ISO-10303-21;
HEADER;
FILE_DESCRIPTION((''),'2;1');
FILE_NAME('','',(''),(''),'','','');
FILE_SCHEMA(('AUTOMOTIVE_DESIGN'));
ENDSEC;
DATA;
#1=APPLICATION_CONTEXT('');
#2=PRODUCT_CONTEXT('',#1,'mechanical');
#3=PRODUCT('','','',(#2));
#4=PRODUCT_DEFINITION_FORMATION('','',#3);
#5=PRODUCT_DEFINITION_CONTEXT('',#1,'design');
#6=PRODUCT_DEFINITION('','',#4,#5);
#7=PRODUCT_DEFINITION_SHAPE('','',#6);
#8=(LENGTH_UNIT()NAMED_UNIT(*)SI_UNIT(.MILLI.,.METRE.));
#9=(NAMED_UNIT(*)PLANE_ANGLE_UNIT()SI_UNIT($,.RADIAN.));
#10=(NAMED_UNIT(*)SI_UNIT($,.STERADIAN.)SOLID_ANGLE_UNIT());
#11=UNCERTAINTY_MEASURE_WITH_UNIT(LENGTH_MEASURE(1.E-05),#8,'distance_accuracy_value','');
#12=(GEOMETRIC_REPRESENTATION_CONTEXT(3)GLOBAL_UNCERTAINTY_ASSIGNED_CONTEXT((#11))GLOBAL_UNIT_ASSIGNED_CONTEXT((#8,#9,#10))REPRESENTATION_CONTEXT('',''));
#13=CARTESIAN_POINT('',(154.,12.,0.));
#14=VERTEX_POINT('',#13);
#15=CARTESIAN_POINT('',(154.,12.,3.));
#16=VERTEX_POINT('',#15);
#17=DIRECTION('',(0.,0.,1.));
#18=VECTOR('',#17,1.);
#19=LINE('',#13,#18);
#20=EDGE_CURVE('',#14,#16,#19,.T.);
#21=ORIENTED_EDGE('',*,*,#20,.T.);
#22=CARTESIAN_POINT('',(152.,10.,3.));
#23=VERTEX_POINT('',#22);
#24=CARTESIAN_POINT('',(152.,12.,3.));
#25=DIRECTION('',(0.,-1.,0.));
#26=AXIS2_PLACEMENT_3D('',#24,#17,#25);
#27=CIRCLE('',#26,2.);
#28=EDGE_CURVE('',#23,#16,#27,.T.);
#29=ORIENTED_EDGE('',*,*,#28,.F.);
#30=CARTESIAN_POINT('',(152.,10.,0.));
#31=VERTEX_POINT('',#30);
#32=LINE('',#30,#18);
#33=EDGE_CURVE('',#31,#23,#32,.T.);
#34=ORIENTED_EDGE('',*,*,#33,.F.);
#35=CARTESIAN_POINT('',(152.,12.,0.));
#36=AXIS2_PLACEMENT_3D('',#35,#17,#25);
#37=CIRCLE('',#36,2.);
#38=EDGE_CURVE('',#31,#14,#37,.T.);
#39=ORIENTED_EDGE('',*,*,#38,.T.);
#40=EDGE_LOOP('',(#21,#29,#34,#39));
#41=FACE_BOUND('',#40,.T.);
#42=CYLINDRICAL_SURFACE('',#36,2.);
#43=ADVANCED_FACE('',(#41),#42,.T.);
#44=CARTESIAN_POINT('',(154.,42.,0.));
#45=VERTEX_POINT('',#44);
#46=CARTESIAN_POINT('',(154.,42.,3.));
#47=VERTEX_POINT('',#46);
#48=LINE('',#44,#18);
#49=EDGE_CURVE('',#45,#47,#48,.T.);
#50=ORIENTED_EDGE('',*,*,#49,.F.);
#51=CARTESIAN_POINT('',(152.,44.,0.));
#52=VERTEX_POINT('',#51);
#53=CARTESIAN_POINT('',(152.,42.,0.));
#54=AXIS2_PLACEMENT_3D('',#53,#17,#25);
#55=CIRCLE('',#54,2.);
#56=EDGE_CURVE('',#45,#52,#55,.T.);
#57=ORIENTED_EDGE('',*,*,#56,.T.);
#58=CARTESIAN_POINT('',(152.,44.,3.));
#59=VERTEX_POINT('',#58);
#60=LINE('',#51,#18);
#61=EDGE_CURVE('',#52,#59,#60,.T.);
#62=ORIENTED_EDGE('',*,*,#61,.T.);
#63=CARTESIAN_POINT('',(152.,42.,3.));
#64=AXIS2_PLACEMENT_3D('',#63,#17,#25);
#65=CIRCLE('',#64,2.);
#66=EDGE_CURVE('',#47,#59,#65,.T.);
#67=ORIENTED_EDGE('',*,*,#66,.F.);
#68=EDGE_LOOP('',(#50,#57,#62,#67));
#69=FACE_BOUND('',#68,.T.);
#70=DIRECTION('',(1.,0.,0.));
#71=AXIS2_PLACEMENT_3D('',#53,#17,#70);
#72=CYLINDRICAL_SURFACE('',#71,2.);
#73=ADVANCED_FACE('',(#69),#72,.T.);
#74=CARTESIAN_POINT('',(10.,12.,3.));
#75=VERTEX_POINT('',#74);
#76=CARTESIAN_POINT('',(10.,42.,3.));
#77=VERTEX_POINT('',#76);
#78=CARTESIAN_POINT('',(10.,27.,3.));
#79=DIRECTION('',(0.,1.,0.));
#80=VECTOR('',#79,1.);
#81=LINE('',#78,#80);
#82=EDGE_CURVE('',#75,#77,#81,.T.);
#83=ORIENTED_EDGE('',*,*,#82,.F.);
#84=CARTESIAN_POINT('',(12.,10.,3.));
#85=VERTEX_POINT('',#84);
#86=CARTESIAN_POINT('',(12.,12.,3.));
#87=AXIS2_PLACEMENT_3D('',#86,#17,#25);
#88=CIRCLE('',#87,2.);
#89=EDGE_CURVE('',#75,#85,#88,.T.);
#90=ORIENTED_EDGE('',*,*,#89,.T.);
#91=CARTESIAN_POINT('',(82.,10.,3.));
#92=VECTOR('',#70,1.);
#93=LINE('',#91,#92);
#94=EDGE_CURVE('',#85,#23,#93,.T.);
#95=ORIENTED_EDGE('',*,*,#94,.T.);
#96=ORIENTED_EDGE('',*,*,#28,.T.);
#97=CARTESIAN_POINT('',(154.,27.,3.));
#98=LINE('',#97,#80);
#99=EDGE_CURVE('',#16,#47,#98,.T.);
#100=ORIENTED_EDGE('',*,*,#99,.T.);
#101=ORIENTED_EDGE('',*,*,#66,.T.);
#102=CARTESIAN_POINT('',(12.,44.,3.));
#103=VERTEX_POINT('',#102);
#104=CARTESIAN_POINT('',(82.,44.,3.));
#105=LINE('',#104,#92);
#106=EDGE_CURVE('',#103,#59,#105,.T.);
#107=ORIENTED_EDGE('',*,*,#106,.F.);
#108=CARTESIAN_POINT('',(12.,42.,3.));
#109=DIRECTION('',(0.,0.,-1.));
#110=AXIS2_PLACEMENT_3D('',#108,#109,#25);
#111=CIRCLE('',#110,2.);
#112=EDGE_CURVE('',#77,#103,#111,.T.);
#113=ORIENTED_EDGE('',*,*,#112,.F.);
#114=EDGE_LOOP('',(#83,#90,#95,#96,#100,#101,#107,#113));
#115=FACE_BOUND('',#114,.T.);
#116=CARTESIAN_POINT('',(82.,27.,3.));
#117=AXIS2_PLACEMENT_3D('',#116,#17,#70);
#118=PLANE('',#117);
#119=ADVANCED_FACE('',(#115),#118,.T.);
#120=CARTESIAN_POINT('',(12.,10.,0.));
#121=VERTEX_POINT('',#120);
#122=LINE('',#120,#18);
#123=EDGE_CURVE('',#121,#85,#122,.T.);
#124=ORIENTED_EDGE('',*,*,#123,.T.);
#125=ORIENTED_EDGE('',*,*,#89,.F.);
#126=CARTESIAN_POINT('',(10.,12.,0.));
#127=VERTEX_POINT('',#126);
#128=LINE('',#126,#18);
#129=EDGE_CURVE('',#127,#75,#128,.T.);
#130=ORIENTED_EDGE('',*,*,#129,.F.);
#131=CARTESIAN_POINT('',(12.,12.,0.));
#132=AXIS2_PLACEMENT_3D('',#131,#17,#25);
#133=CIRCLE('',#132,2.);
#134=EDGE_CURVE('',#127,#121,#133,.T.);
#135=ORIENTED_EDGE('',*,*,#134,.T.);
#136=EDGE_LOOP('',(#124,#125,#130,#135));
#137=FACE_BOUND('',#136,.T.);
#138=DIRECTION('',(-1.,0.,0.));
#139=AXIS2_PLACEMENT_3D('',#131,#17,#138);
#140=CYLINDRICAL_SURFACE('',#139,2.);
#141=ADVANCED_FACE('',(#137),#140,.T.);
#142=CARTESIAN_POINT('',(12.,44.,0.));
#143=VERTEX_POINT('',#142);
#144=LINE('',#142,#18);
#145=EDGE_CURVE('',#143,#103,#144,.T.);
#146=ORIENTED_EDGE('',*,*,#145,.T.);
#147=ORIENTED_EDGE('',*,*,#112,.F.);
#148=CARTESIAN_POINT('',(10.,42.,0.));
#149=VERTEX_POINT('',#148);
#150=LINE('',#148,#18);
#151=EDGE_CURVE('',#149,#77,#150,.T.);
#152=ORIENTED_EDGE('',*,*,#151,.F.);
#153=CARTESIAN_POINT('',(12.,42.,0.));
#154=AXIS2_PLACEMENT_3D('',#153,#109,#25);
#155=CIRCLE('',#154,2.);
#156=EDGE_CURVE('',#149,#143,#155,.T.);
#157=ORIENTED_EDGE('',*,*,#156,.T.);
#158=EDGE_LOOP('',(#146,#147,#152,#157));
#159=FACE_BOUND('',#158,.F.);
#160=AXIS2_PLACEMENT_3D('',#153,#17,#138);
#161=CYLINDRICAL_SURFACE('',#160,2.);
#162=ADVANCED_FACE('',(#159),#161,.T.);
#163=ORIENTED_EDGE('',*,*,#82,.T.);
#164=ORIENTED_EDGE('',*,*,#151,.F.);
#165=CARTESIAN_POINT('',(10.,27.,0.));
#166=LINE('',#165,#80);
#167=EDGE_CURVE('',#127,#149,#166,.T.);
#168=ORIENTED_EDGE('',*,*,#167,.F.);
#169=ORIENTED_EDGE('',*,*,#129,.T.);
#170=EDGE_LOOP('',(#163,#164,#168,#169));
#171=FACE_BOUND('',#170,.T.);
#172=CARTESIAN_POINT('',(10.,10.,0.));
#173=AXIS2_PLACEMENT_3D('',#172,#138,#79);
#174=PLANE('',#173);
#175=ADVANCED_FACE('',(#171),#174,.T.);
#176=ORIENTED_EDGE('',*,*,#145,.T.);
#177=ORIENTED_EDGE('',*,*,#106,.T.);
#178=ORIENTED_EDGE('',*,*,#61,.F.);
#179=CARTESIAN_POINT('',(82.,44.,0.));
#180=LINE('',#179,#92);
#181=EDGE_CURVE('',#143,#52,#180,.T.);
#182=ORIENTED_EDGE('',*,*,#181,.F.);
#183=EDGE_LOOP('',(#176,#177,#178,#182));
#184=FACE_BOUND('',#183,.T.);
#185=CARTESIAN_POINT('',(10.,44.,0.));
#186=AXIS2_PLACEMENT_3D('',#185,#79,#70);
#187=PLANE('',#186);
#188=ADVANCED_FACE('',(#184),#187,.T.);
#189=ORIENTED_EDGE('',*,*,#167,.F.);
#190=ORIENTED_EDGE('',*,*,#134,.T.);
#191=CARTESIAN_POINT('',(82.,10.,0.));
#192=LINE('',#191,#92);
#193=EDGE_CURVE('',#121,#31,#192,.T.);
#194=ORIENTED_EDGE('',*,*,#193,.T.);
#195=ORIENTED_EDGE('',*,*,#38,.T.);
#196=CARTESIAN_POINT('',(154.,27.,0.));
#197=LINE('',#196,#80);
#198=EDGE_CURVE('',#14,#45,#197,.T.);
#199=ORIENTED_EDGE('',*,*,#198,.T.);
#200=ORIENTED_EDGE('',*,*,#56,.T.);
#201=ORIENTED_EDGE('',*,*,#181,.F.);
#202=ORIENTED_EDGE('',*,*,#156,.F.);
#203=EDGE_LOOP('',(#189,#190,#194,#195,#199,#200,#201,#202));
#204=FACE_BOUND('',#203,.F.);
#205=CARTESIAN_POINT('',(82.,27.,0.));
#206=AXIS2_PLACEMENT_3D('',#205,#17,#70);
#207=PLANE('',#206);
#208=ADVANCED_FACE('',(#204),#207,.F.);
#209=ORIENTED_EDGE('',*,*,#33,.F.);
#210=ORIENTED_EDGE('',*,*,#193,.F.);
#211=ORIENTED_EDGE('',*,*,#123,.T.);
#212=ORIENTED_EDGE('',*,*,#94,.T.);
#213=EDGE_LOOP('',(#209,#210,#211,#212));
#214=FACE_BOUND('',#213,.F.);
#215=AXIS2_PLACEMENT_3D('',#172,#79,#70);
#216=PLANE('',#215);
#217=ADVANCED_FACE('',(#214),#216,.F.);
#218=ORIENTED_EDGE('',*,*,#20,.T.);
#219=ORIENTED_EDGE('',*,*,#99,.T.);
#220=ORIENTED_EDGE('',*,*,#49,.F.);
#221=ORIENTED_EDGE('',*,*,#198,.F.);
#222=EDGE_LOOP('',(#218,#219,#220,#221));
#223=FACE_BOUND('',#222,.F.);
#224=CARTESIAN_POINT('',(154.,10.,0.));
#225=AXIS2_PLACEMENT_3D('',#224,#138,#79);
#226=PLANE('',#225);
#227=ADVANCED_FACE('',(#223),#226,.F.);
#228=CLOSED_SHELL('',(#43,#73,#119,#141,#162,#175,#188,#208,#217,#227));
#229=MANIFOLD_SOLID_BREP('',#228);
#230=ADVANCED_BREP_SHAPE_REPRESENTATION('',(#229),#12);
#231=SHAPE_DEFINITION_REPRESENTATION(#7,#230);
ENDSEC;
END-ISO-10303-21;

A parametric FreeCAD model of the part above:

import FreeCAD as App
import Part
import Sketcher
from FreeCAD import Vector


def edges_at(feature, points):
    """Names of the edges that pass closest to the given points."""
    edges = feature.Shape.Edges
    near = lambda p: min(range(len(edges)), key=lambda i: edges[i].distToShape(Part.Vertex(*p))[0])
    return sorted({f"Edge{near(p) + 1}" for p in points})

doc = App.newDocument("Part")
body = doc.addObject("PartDesign::Body", "Body")

sketch1 = body.newObject("Sketcher::SketchObject", "Sketch")
sketch1.AttachmentSupport = (doc.getObject("XY_Plane"), [""])
sketch1.MapMode = "FlatFace"
sketch1.addGeometry(Part.LineSegment(Vector(10, 44, 0), Vector(10, 10, 0)), False)
sketch1.addGeometry(Part.LineSegment(Vector(10, 10, 0), Vector(154, 10, 0)), False)
sketch1.addGeometry(Part.LineSegment(Vector(154, 10, 0), Vector(154, 44, 0)), False)
sketch1.addGeometry(Part.LineSegment(Vector(154, 44, 0), Vector(10, 44, 0)), False)
sketch1.addConstraint(Sketcher.Constraint("Coincident", 0, 2, 1, 1))
sketch1.addConstraint(Sketcher.Constraint("Coincident", 1, 2, 2, 1))
sketch1.addConstraint(Sketcher.Constraint("Coincident", 2, 2, 3, 1))
sketch1.addConstraint(Sketcher.Constraint("Coincident", 3, 2, 0, 1))
sketch1.addConstraint(Sketcher.Constraint("Vertical", 0))
sketch1.addConstraint(Sketcher.Constraint("Horizontal", 1))
sketch1.addConstraint(Sketcher.Constraint("Vertical", 2))
sketch1.addConstraint(Sketcher.Constraint("Horizontal", 3))
sketch1.addConstraint(Sketcher.Constraint("DistanceX", 1, 1, 1, 2, 144.0))
sketch1.addConstraint(Sketcher.Constraint("DistanceY", 0, 2, 0, 1, 34.0))
sketch1.addConstraint(Sketcher.Constraint("DistanceX", -1, 1, 0, 2, 10.0))
sketch1.addConstraint(Sketcher.Constraint("DistanceY", -1, 1, 0, 2, 10.0))
pad1 = body.newObject("PartDesign::Pad", "Pad")
pad1.Profile = sketch1
pad1.Length = 3
doc.recompute()

fillet = body.newObject("PartDesign::Fillet", "Fillet")
fillet.Base = (pad1, edges_at(pad1, [
    (10, 10, 1.5),
    (154, 10, 1.5),
    (154, 44, 1.5),
    (10, 44, 1.5),
]))
fillet.Radius = 2

doc.recompute()
